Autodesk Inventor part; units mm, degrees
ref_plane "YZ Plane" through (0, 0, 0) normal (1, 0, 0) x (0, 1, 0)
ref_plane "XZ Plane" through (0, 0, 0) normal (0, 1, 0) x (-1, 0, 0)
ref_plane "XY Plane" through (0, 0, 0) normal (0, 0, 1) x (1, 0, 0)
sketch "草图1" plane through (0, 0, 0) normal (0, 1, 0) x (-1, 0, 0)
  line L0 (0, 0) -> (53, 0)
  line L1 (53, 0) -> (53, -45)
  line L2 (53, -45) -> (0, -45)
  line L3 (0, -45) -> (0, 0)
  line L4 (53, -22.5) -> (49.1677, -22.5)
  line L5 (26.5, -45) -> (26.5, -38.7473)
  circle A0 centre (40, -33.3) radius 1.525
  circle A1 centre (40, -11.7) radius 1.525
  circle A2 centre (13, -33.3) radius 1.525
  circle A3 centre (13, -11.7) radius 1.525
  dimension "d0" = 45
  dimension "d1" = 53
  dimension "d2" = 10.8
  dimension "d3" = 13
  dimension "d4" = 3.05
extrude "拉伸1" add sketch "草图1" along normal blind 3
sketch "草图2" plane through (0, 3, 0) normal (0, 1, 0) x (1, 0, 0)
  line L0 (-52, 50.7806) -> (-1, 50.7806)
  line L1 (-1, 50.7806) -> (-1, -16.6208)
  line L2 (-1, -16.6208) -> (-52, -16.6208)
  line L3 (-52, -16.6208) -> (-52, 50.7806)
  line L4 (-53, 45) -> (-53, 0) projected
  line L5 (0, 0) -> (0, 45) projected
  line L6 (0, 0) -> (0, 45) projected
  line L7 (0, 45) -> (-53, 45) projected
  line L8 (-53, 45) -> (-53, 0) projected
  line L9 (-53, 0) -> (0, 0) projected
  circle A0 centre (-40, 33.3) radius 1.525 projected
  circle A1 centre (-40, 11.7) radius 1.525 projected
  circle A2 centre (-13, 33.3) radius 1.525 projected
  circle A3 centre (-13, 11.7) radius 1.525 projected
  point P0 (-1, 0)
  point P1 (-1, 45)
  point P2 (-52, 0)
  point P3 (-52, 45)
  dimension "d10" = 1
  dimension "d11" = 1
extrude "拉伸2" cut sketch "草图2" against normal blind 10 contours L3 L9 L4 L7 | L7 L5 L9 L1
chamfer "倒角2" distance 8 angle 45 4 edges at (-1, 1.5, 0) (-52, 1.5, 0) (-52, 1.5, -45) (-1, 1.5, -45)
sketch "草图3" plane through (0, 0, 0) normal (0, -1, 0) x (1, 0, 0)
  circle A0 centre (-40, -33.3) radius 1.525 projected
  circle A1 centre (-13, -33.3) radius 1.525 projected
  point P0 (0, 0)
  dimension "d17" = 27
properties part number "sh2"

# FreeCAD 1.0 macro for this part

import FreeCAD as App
import Part
import Sketcher
Q = App.Units.Quantity


def edges_at(feature, points):
    """Names of the edges that pass closest to the given points."""
    edges = feature.Shape.Edges
    near = lambda p: min(range(len(edges)), key=lambda i: edges[i].distToShape(Part.Vertex(*p))[0])
    return sorted({f"Edge{near(p) + 1}" for p in points})

doc = App.newDocument("Part")
body = doc.addObject("PartDesign::Body", "Body")

sketch1 = body.newObject("Sketcher::SketchObject", "Sketch")
sketch1.AttachmentSupport = (doc.getObject("XZ_Plane"), [""])
sketch1.MapMode = "FlatFace"
sketch1.addGeometry([
    Part.LineSegment(App.Vector(-53, 0, 0), App.Vector(0, 0, 0)),
    Part.LineSegment(App.Vector(0, 0, 0), App.Vector(0, -45, 0)),
    Part.LineSegment(App.Vector(0, -45, 0), App.Vector(-53, -45, 0)),
    Part.LineSegment(App.Vector(-53, -45, 0), App.Vector(-53, 0, 0)),
    Part.Circle(App.Vector(-13, -33.3, 0), App.Vector(0, 0, 1), 1.5),
    Part.Circle(App.Vector(-40, -33.3, 0), App.Vector(0, 0, 1), 1.5),
    Part.Circle(App.Vector(-13, -11.7, 0), App.Vector(0, 0, 1), 1.5),
    Part.Circle(App.Vector(-40, -11.7, 0), App.Vector(0, 0, 1), 1.5),
], False)
sketch1.addConstraint([
    Sketcher.Constraint("Coincident", 0, 2, 1, 1),
    Sketcher.Constraint("Coincident", 1, 2, 2, 1),
    Sketcher.Constraint("Coincident", 2, 2, 3, 1),
    Sketcher.Constraint("Coincident", 3, 2, 0, 1),
    Sketcher.Constraint("Horizontal", 0),
    Sketcher.Constraint("Vertical", 1),
    Sketcher.Constraint("Horizontal", 2),
    Sketcher.Constraint("Vertical", 3),
    Sketcher.Constraint("Coincident", 0, 2, -1, 1),
    Sketcher.Constraint("Equal", 4, 5),
    Sketcher.Constraint("Equal", 5, 6),
    Sketcher.Constraint("Equal", 6, 7),
    Sketcher.Constraint("Horizontal", 4, 3, 5, 3),
    Sketcher.Constraint("Horizontal", 6, 3, 7, 3),
    Sketcher.Constraint("Vertical", 4, 3, 6, 3),
    Sketcher.Constraint("Vertical", 5, 3, 7, 3),
    Sketcher.Constraint("Diameter", 4, Q("3.05 mm")),
    Sketcher.Constraint("DistanceX", 0, 1, 0, 2, Q("53 mm")),
    Sketcher.Constraint("DistanceY", 1, 2, 1, 1, Q("45 mm")),
    Sketcher.Constraint("DistanceX", 4, 3, -1, 1, Q("13 mm")),
    Sketcher.Constraint("DistanceX", 2, 2, 5, 3, Q("13 mm")),
    Sketcher.Constraint("DistanceY", 4, 3, -1, 1, Q("33.3 mm")),
    Sketcher.Constraint("DistanceY", 6, 3, -1, 1, Q("11.7 mm")),
])
pad1 = body.newObject("PartDesign::Pad", "Pad")
pad1.Profile = sketch1
pad1.Length = 3
pad1.Reversed = True

sketch2 = body.newObject("Sketcher::SketchObject", "Sketch001")
sketch2.AttachmentSupport = (doc.getObject("XZ_Plane"), [""])
sketch2.MapMode = "FlatFace"
sketch2.AttachmentOffset = App.Placement(App.Vector(0, 0, -3), App.Rotation())
sketch2.addGeometry([
    Part.LineSegment(App.Vector(-52, 0, 0), App.Vector(-52, -45, 0)),
    Part.LineSegment(App.Vector(-52, -45, 0), App.Vector(-53, -45, 0)),
    Part.LineSegment(App.Vector(-53, -45, 0), App.Vector(-53, 0, 0)),
    Part.LineSegment(App.Vector(-53, 0, 0), App.Vector(-52, 0, 0)),
    Part.LineSegment(App.Vector(0, -45, 0), App.Vector(-1, -45, 0)),
    Part.LineSegment(App.Vector(-1, -45, 0), App.Vector(-1, 0, 0)),
    Part.LineSegment(App.Vector(-1, 0, 0), App.Vector(0, 0, 0)),
    Part.LineSegment(App.Vector(0, 0, 0), App.Vector(0, -45, 0)),
], False)
sketch2.addConstraint([
    Sketcher.Constraint("Coincident", 0, 2, 1, 1),
    Sketcher.Constraint("Coincident", 1, 2, 2, 1),
    Sketcher.Constraint("Coincident", 2, 2, 3, 1),
    Sketcher.Constraint("Coincident", 3, 2, 0, 1),
    Sketcher.Constraint("Coincident", 4, 2, 5, 1),
    Sketcher.Constraint("Coincident", 5, 2, 6, 1),
    Sketcher.Constraint("Coincident", 6, 2, 7, 1),
    Sketcher.Constraint("Coincident", 7, 2, 4, 1),
    Sketcher.Constraint("Vertical", 0),
    Sketcher.Constraint("Horizontal", 1),
    Sketcher.Constraint("Vertical", 2),
    Sketcher.Constraint("Horizontal", 3),
    Sketcher.Constraint("Horizontal", 4),
    Sketcher.Constraint("Vertical", 5),
    Sketcher.Constraint("Horizontal", 6),
    Sketcher.Constraint("Vertical", 7),
    Sketcher.Constraint("Coincident", 6, 2, -1, 1),
    Sketcher.Constraint("PointOnObject", 2, 2, -1),
    Sketcher.Constraint("Horizontal", 1, 2, 4, 2),
    Sketcher.Constraint("Equal", 3, 4),
    Sketcher.Constraint("DistanceX", 1, 2, 1, 1, Q("1 mm")),
    Sketcher.Constraint("DistanceY", 0, 2, 0, 1, Q("45 mm")),
    Sketcher.Constraint("DistanceX", 0, 2, -1, 1, Q("52 mm")),
])
pocket1 = body.newObject("PartDesign::Pocket", "Pocket")
pocket1.Profile = sketch2
pocket1.Length = 10
pocket1.Reversed = True
doc.recompute()

chamfer = body.newObject("PartDesign::Chamfer", "Chamfer")
chamfer.Base = (pocket1, edges_at(pocket1, [
    (-1, 1.5, 0),
    (-52, 1.5, 0),
    (-52, 1.5, -45),
    (-1, 1.5, -45),
]))
chamfer.Size = 8

doc.recompute()
